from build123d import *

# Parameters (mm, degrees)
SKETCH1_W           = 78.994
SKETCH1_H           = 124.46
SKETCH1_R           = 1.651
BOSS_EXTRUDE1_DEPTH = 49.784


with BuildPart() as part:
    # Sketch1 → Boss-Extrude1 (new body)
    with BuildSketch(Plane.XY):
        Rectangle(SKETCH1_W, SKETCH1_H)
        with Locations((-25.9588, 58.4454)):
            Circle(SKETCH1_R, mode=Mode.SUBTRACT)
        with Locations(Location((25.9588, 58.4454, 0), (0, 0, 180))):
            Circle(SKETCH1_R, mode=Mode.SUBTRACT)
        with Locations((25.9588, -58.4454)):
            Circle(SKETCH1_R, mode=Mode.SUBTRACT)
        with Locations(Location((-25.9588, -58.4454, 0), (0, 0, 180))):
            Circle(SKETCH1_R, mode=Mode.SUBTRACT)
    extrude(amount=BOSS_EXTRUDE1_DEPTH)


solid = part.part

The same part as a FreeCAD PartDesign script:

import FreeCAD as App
import Part
import Sketcher
Q = App.Units.Quantity


def add_polygon(sketch, points):
    """Adds a closed chain of lines whose ends are joined by coincident constraints."""
    first, n = sketch.GeometryCount, len(points)
    for a, b in zip(points, points[1:] + points[:1]):
        sketch.addGeometry(Part.LineSegment(App.Vector(*a, 0), App.Vector(*b, 0)), False)
    for i in range(n):
        sketch.addConstraint(Sketcher.Constraint("Coincident", first + i, 2, first + (i + 1) % n, 1))

doc = App.newDocument("Part")
body = doc.addObject("PartDesign::Body", "Body")

# Sketch on XY plane
sketch1 = body.newObject("Sketcher::SketchObject", "Sketch")
sketch1.AttachmentSupport = (doc.getObject("XY_Plane"), [""])
sketch1.MapMode = "FlatFace"
add_polygon(sketch1, [(-39.5, 62.2), (-39.5, -62.2), (39.5, -62.2), (39.5, 62.2)])  # lines 0-3
sketch1.addGeometry(Part.Circle(App.Vector(-26, -58.4, 0), App.Vector(0, 0, 1), 1.7), False)  # 4
sketch1.addGeometry(Part.Circle(App.Vector(26, -58.4, 0), App.Vector(0, 0, 1), 1.7), False)  # 5
sketch1.addGeometry(Part.Circle(App.Vector(-26, 58.4, 0), App.Vector(0, 0, 1), 1.7), False)  # 6
sketch1.addGeometry(Part.Circle(App.Vector(26, 58.4, 0), App.Vector(0, 0, 1), 1.7), False)  # 7
sketch1.addConstraint([
    Sketcher.Constraint("Vertical", 0),
    Sketcher.Constraint("Horizontal", 1),
    Sketcher.Constraint("Vertical", 2),
    Sketcher.Constraint("Horizontal", 3),
    Sketcher.Constraint("Equal", 4, 5),
    Sketcher.Constraint("Equal", 5, 6),
    Sketcher.Constraint("Equal", 6, 7),
    Sketcher.Constraint("Symmetric", 5, 3, 6, 3, -1, 1),
    Sketcher.Constraint("Symmetric", 4, 3, 7, 3, -1, 1),
    Sketcher.Constraint("Symmetric", 0, 2, 2, 2, -1, 1),
    Sketcher.Constraint("Symmetric", 4, 3, 5, 3, -2),
    Sketcher.Constraint("Diameter", 4, Q("0.13 in")),
    Sketcher.Constraint("DistanceY", 0, 2, 0, 1, Q("4.9 in")),
    Sketcher.Constraint("DistanceX", 1, 1, 1, 2, Q("3.11 in")),
    Sketcher.Constraint("DistanceX", 4, 3, -1, 1, Q("1.022 in")),
    Sketcher.Constraint("DistanceY", 4, 3, -1, 1, Q("2.301 in")),
])
pad1 = body.newObject("PartDesign::Pad", "Pad")
pad1.Profile = sketch1
pad1.Length = Q("1.96 in")

doc.recompute()
